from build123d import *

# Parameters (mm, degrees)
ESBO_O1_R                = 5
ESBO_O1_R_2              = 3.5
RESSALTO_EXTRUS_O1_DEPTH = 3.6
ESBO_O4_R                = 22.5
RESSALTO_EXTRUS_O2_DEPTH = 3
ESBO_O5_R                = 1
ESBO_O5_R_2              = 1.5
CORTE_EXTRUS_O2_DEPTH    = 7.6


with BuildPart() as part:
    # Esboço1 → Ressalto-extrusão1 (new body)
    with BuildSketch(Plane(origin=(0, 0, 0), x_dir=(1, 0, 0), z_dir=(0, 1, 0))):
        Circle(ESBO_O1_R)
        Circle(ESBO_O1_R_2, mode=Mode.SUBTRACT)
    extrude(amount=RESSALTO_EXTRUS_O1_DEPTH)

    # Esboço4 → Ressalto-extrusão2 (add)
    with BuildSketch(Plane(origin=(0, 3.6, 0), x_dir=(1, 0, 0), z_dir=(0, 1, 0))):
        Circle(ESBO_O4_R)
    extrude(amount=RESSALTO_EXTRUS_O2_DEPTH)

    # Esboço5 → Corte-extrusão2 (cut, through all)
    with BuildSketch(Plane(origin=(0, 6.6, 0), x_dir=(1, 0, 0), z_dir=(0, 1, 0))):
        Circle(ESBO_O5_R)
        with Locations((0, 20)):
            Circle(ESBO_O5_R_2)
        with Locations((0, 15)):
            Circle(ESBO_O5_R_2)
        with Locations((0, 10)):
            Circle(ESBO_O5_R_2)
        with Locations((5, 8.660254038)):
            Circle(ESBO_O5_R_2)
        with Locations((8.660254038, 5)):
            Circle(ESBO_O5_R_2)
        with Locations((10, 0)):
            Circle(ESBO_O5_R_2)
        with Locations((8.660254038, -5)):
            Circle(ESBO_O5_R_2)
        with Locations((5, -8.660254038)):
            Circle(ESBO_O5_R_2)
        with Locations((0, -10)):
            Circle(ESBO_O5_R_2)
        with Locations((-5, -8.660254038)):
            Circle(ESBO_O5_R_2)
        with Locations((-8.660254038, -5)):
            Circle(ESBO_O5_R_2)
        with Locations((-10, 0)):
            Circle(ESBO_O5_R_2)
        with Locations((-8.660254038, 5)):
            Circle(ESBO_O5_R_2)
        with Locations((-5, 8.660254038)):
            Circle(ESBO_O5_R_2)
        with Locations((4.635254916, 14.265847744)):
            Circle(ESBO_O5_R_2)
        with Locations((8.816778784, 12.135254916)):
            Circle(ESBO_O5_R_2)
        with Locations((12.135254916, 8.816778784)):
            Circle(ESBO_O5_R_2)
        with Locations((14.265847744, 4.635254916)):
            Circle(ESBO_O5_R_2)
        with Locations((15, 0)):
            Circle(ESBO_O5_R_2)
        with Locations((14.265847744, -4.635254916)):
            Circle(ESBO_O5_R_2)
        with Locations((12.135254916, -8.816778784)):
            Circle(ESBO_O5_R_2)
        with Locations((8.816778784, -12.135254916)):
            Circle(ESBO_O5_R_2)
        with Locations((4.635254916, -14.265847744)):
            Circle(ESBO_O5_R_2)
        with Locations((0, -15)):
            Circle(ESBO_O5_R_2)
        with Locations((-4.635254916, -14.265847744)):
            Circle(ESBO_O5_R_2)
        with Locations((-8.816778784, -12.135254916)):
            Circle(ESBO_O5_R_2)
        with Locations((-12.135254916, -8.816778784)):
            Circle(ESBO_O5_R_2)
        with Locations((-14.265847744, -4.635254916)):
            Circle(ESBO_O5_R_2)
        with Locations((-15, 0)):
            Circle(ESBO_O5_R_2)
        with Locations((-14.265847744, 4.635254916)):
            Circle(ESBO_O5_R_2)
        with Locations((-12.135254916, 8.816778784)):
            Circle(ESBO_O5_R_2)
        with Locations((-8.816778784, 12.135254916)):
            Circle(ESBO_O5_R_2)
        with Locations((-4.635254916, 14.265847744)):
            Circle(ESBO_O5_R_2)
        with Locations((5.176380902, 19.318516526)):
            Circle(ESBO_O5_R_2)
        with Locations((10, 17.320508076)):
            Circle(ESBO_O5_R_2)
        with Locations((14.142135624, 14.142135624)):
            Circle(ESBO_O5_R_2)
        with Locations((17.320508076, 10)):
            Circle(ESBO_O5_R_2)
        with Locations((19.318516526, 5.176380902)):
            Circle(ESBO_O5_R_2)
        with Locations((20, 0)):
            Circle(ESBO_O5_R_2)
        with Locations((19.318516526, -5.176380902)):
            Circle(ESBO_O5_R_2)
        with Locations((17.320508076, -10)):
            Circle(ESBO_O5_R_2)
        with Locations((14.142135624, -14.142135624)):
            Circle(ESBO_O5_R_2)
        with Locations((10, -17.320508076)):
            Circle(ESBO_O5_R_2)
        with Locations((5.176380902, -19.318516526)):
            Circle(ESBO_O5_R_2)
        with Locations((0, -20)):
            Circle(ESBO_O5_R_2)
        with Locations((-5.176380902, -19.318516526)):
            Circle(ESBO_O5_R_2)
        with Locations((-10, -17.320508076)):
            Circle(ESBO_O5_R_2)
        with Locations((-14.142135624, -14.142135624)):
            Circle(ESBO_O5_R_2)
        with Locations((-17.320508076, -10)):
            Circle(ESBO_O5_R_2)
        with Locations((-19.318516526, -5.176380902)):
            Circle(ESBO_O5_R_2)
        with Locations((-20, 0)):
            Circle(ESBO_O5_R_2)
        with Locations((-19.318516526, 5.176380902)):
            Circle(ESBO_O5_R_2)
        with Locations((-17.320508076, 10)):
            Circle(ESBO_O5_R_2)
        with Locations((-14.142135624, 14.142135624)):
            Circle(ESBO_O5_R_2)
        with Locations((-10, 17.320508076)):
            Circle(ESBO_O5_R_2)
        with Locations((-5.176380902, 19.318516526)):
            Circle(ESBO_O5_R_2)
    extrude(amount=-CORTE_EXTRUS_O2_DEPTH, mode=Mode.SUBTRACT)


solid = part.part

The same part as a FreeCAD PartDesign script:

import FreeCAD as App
import Part
import Sketcher
from FreeCAD import Vector
Q = App.Units.Quantity

doc = App.newDocument("Part")
body = doc.addObject("PartDesign::Body", "Body")

# Sketch on XZ plane
sketch1 = doc.addObject("Sketcher::SketchObject", "Sketch")
body.addObject(sketch1)
sketch1.AttachmentSupport = (doc.XZ_Plane, [""])
sketch1.MapMode = "FlatFace"
sketch1.addGeometry([
    Part.Circle(Vector(0, 0, 0), Vector(0, 0, 1), 5),
    Part.Circle(Vector(0, 0, 0), Vector(0, 0, 1), 3.5),
], False)
sketch1.addConstraint([
    Sketcher.Constraint("Coincident", 0, 3, -1, 1),
    Sketcher.Constraint("Coincident", 1, 3, -1, 1),
    Sketcher.Constraint("Diameter", 0, Q("10 mm")),
    Sketcher.Constraint("Diameter", 1, Q("7 mm")),
])
pad1 = doc.addObject("PartDesign::Pad", "Pad")
body.addObject(pad1)
pad1.Profile = sketch1
pad1.Length = 3.6
pad1.Reversed = True

# Sketch on XZ plane
sketch2 = doc.addObject("Sketcher::SketchObject", "Sketch001")
body.addObject(sketch2)
sketch2.AttachmentSupport = (doc.XZ_Plane, [""])
sketch2.MapMode = "FlatFace"
sketch2.AttachmentOffset = App.Placement(Vector(0, 0, -3.6), App.Rotation())
sketch2.addGeometry(Part.Circle(Vector(0, 0, 0), Vector(0, 0, 1), 22), False)
sketch2.addConstraint([
    Sketcher.Constraint("Coincident", 0, 3, -1, 1),
    Sketcher.Constraint("Diameter", 0, Q("45 mm")),
])
pad2 = doc.addObject("PartDesign::Pad", "Pad001")
body.addObject(pad2)
pad2.Profile = sketch2
pad2.Length = 3
pad2.Reversed = True

# Sketch on XZ plane
sketch3 = doc.addObject("Sketcher::SketchObject", "Sketch002")
body.addObject(sketch3)
sketch3.AttachmentSupport = (doc.XZ_Plane, [""])
sketch3.MapMode = "FlatFace"
sketch3.AttachmentOffset = App.Placement(Vector(0, 0, -6.6), App.Rotation())
sketch3.addGeometry([
    Part.Circle(Vector(0, 0, 0), Vector(0, 0, 1), 1),  # 0
    Part.Circle(Vector(0, -20, 0), Vector(0, 0, 1), 1.5),  # 1
    Part.Circle(Vector(0, -15, 0), Vector(0, 0, 1), 1.5),  # 2
    Part.Circle(Vector(0, -10, 0), Vector(0, 0, 1), 1.5),  # 3
    Part.Circle(Vector(5, -8.7, 0), Vector(0, 0, 1), 1.5),  # 4
    Part.Circle(Vector(8.7, -5, 0), Vector(0, 0, 1), 1.5),  # 5
    Part.Circle(Vector(10, 0, 0), Vector(0, 0, 1), 1.5),  # 6
    Part.Circle(Vector(8.7, 5, 0), Vector(0, 0, 1), 1.5),  # 7
    Part.Circle(Vector(5, 8.7, 0), Vector(0, 0, 1), 1.5),  # 8
    Part.Circle(Vector(0, 10, 0), Vector(0, 0, 1), 1.5),  # 9
    Part.Circle(Vector(-5, 8.7, 0), Vector(0, 0, 1), 1.5),  # 10
    Part.Circle(Vector(-8.7, 5, 0), Vector(0, 0, 1), 1.5),  # 11
    Part.Circle(Vector(-10, 0, 0), Vector(0, 0, 1), 1.5),  # 12
    Part.Circle(Vector(-8.7, -5, 0), Vector(0, 0, 1), 1.5),  # 13
    Part.Circle(Vector(-5, -8.7, 0), Vector(0, 0, 1), 1.5),  # 14
    Part.Circle(Vector(4.6, -14.3, 0), Vector(0, 0, 1), 1.5),  # 15
    Part.Circle(Vector(8.8, -12.1, 0), Vector(0, 0, 1), 1.5),  # 16
    Part.Circle(Vector(12.1, -8.8, 0), Vector(0, 0, 1), 1.5),  # 17
    Part.Circle(Vector(14.3, -4.6, 0), Vector(0, 0, 1), 1.5),  # 18
    Part.Circle(Vector(15, 0, 0), Vector(0, 0, 1), 1.5),  # 19
    Part.Circle(Vector(14.3, 4.6, 0), Vector(0, 0, 1), 1.5),  # 20
    Part.Circle(Vector(12.1, 8.8, 0), Vector(0, 0, 1), 1.5),  # 21
    Part.Circle(Vector(8.8, 12.1, 0), Vector(0, 0, 1), 1.5),  # 22
    Part.Circle(Vector(4.6, 14.3, 0), Vector(0, 0, 1), 1.5),  # 23
    Part.Circle(Vector(0, 15, 0), Vector(0, 0, 1), 1.5),  # 24
    Part.Circle(Vector(-4.6, 14.3, 0), Vector(0, 0, 1), 1.5),  # 25
    Part.Circle(Vector(-8.8, 12.1, 0), Vector(0, 0, 1), 1.5),  # 26
    Part.Circle(Vector(-12.1, 8.8, 0), Vector(0, 0, 1), 1.5),  # 27
    Part.Circle(Vector(-14.3, 4.6, 0), Vector(0, 0, 1), 1.5),  # 28
    Part.Circle(Vector(-15, 0, 0), Vector(0, 0, 1), 1.5),  # 29
    Part.Circle(Vector(-14.3, -4.6, 0), Vector(0, 0, 1), 1.5),  # 30
    Part.Circle(Vector(-12.1, -8.8, 0), Vector(0, 0, 1), 1.5),  # 31
    Part.Circle(Vector(-8.8, -12.1, 0), Vector(0, 0, 1), 1.5),  # 32
    Part.Circle(Vector(-4.6, -14.3, 0), Vector(0, 0, 1), 1.5),  # 33
    Part.Circle(Vector(5.2, -19.3, 0), Vector(0, 0, 1), 1.5),  # 34
    Part.Circle(Vector(10, -17.3, 0), Vector(0, 0, 1), 1.5),  # 35
    Part.Circle(Vector(14.1, -14.1, 0), Vector(0, 0, 1), 1.5),  # 36
    Part.Circle(Vector(17.3, -10, 0), Vector(0, 0, 1), 1.5),  # 37
    Part.Circle(Vector(19.3, -5.2, 0), Vector(0, 0, 1), 1.5),  # 38
    Part.Circle(Vector(20, 0, 0), Vector(0, 0, 1), 1.5),  # 39
    Part.Circle(Vector(19.3, 5.2, 0), Vector(0, 0, 1), 1.5),  # 40
    Part.Circle(Vector(17.3, 10, 0), Vector(0, 0, 1), 1.5),  # 41
    Part.Circle(Vector(14.1, 14.1, 0), Vector(0, 0, 1), 1.5),  # 42
    Part.Circle(Vector(10, 17.3, 0), Vector(0, 0, 1), 1.5),  # 43
    Part.Circle(Vector(5.2, 19.3, 0), Vector(0, 0, 1), 1.5),  # 44
    Part.Circle(Vector(0, 20, 0), Vector(0, 0, 1), 1.5),  # 45
    Part.Circle(Vector(-5.2, 19.3, 0), Vector(0, 0, 1), 1.5),  # 46
    Part.Circle(Vector(-10, 17.3, 0), Vector(0, 0, 1), 1.5),  # 47
    Part.Circle(Vector(-14.1, 14.1, 0), Vector(0, 0, 1), 1.5),  # 48
    Part.Circle(Vector(-17.3, 10, 0), Vector(0, 0, 1), 1.5),  # 49
    Part.Circle(Vector(-19.3, 5.2, 0), Vector(0, 0, 1), 1.5),  # 50
    Part.Circle(Vector(-20, 0, 0), Vector(0, 0, 1), 1.5),  # 51
    Part.Circle(Vector(-19.3, -5.2, 0), Vector(0, 0, 1), 1.5),  # 52
    Part.Circle(Vector(-17.3, -10, 0), Vector(0, 0, 1), 1.5),  # 53
    Part.Circle(Vector(-14.1, -14.1, 0), Vector(0, 0, 1), 1.5),  # 54
    Part.Circle(Vector(-10, -17.3, 0), Vector(0, 0, 1), 1.5),  # 55
    Part.Circle(Vector(-5.2, -19.3, 0), Vector(0, 0, 1), 1.5),  # 56
], False)
sketch3.addConstraint([
    Sketcher.Constraint("Coincident", 0, 3, -1, 1),
    Sketcher.Constraint("Equal", 1, 2),
    Sketcher.Constraint("Equal", 2, 3),
    Sketcher.Constraint("Equal", 3, 4),
    Sketcher.Constraint("Equal", 4, 5),
    Sketcher.Constraint("Equal", 5, 6),
    Sketcher.Constraint("Equal", 6, 7),
    Sketcher.Constraint("Equal", 7, 8),
    Sketcher.Constraint("Equal", 8, 9),
    Sketcher.Constraint("Equal", 9, 10),
    Sketcher.Constraint("Equal", 10, 11),
    Sketcher.Constraint("Equal", 11, 12),
    Sketcher.Constraint("Equal", 12, 13),
    Sketcher.Constraint("Equal", 13, 14),
    Sketcher.Constraint("Equal", 14, 15),
    Sketcher.Constraint("Equal", 15, 16),
    Sketcher.Constraint("Equal", 16, 17),
    Sketcher.Constraint("Equal", 17, 18),
    Sketcher.Constraint("Equal", 18, 19),
    Sketcher.Constraint("Equal", 19, 20),
    Sketcher.Constraint("Equal", 20, 21),
    Sketcher.Constraint("Equal", 21, 22),
    Sketcher.Constraint("Equal", 22, 23),
    Sketcher.Constraint("Equal", 23, 24),
    Sketcher.Constraint("Equal", 24, 25),
    Sketcher.Constraint("Equal", 25, 26),
    Sketcher.Constraint("Equal", 26, 27),
    Sketcher.Constraint("Equal", 27, 28),
    Sketcher.Constraint("Equal", 28, 29),
    Sketcher.Constraint("Equal", 29, 30),
    Sketcher.Constraint("Equal", 30, 31),
    Sketcher.Constraint("Equal", 31, 32),
    Sketcher.Constraint("Equal", 32, 33),
    Sketcher.Constraint("Equal", 33, 34),
    Sketcher.Constraint("Equal", 34, 35),
    Sketcher.Constraint("Equal", 35, 36),
    Sketcher.Constraint("Equal", 36, 37),
    Sketcher.Constraint("Equal", 37, 38),
    Sketcher.Constraint("Equal", 38, 39),
    Sketcher.Constraint("Equal", 39, 40),
    Sketcher.Constraint("Equal", 40, 41),
    Sketcher.Constraint("Equal", 41, 42),
    Sketcher.Constraint("Equal", 42, 43),
    Sketcher.Constraint("Equal", 43, 44),
    Sketcher.Constraint("Equal", 44, 45),
    Sketcher.Constraint("Equal", 45, 46),
    Sketcher.Constraint("Equal", 46, 47),
    Sketcher.Constraint("Equal", 47, 48),
    Sketcher.Constraint("Equal", 48, 49),
    Sketcher.Constraint("Equal", 49, 50),
    Sketcher.Constraint("Equal", 50, 51),
    Sketcher.Constraint("Equal", 51, 52),
    Sketcher.Constraint("Equal", 52, 53),
    Sketcher.Constraint("Equal", 53, 54),
    Sketcher.Constraint("Equal", 54, 55),
    Sketcher.Constraint("Equal", 55, 56),
    Sketcher.Constraint("Symmetric", 3, 3, 9, 3, -1, 1),
    Sketcher.Constraint("Symmetric", 4, 3, 10, 3, -1, 1),
    Sketcher.Constraint("Symmetric", 5, 3, 11, 3, -1, 1),
    Sketcher.Constraint("Symmetric", 6, 3, 12, 3, -1, 1),
    Sketcher.Constraint("Symmetric", 7, 3, 13, 3, -1, 1),
    Sketcher.Constraint("Symmetric", 8, 3, 14, 3, -1, 1),
    Sketcher.Constraint("Symmetric", 2, 3, 24, 3, -1, 1),
    Sketcher.Constraint("Symmetric", 15, 3, 25, 3, -1, 1),
    Sketcher.Constraint("Symmetric", 16, 3, 26, 3, -1, 1),
    Sketcher.Constraint("Symmetric", 17, 3, 27, 3, -1, 1),
    Sketcher.Constraint("Symmetric", 18, 3, 28, 3, -1, 1),
    Sketcher.Constraint("Symmetric", 19, 3, 29, 3, -1, 1),
    Sketcher.Constraint("Symmetric", 20, 3, 30, 3, -1, 1),
    Sketcher.Constraint("Symmetric", 21, 3, 31, 3, -1, 1),
    Sketcher.Constraint("Symmetric", 22, 3, 32, 3, -1, 1),
    Sketcher.Constraint("Symmetric", 23, 3, 33, 3, -1, 1),
    Sketcher.Constraint("Symmetric", 1, 3, 45, 3, -1, 1),
    Sketcher.Constraint("Symmetric", 34, 3, 46, 3, -1, 1),
    Sketcher.Constraint("Symmetric", 35, 3, 47, 3, -1, 1),
    Sketcher.Constraint("Symmetric", 36, 3, 48, 3, -1, 1),
    Sketcher.Constraint("Symmetric", 37, 3, 49, 3, -1, 1),
    Sketcher.Constraint("Symmetric", 38, 3, 50, 3, -1, 1),
    Sketcher.Constraint("Symmetric", 39, 3, 51, 3, -1, 1),
    Sketcher.Constraint("Symmetric", 40, 3, 52, 3, -1, 1),
    Sketcher.Constraint("Symmetric", 41, 3, 53, 3, -1, 1),
    Sketcher.Constraint("Symmetric", 42, 3, 54, 3, -1, 1),
    Sketcher.Constraint("Symmetric", 43, 3, 55, 3, -1, 1),
    Sketcher.Constraint("Symmetric", 44, 3, 56, 3, -1, 1),
    Sketcher.Constraint("Symmetric", 8, 3, 10, 3, -2),
    Sketcher.Constraint("Symmetric", 7, 3, 11, 3, -2),
    Sketcher.Constraint("Symmetric", 23, 3, 25, 3, -2),
    Sketcher.Constraint("Symmetric", 22, 3, 26, 3, -2),
    Sketcher.Constraint("Symmetric", 21, 3, 27, 3, -2),
    Sketcher.Constraint("Symmetric", 20, 3, 28, 3, -2),
    Sketcher.Constraint("Symmetric", 44, 3, 46, 3, -2),
    Sketcher.Constraint("Symmetric", 43, 3, 47, 3, -2),
    Sketcher.Constraint("Symmetric", 42, 3, 48, 3, -2),
    Sketcher.Constraint("Symmetric", 41, 3, 49, 3, -2),
    Sketcher.Constraint("Symmetric", 40, 3, 50, 3, -2),
    Sketcher.Constraint("PointOnObject", 1, 3, -2),
    Sketcher.Constraint("PointOnObject", 2, 3, -2),
    Sketcher.Constraint("PointOnObject", 3, 3, -2),
    Sketcher.Constraint("PointOnObject", 6, 3, -1),
    Sketcher.Constraint("PointOnObject", 19, 3, -1),
    Sketcher.Constraint("PointOnObject", 39, 3, -1),
    Sketcher.Constraint("Horizontal", 3, 3, 37, 3),
    Sketcher.Constraint("Vertical", 6, 3, 35, 3),
    Sketcher.Constraint("Diameter", 0, Q("2 mm")),
    Sketcher.Constraint("Diameter", 1, Q("3 mm")),
    Sketcher.Constraint("DistanceY", 1, 3, -1, 1, Q("20 mm")),
    Sketcher.Constraint("DistanceY", 2, 3, -1, 1, Q("15 mm")),
    Sketcher.Constraint("DistanceY", 3, 3, -1, 1, Q("10 mm")),
    Sketcher.Constraint("DistanceX", -1, 1, 4, 3, Q("5 mm")),
    Sketcher.Constraint("DistanceY", 5, 3, -1, 1, Q("5 mm")),
    Sketcher.Constraint("DistanceX", -1, 1, 6, 3, Q("10 mm")),
    Sketcher.Constraint("DistanceX", -1, 1, 19, 3, Q("15 mm")),
    Sketcher.Constraint("DistanceX", -1, 1, 39, 3, Q("20 mm")),
    Sketcher.Constraint("DistanceX", 15, 3, 17, 3, Q("7.5 mm")),
    Sketcher.Constraint("DistanceY", 16, 3, 18, 3, Q("7.5 mm")),
    Sketcher.Constraint("DistanceX", 15, 3, 5, 3, Q("4.024999 mm")),
    Sketcher.Constraint("DistanceY", 16, 3, 4, 3, Q("3.475001 mm")),
    Sketcher.Constraint("DistanceX", -1, 1, 16, 3, Q("8.816779 mm")),
    Sketcher.Constraint("DistanceY", 17, 3, -1, 1, Q("8.816779 mm")),
    Sketcher.Constraint("DistanceX", -1, 1, 34, 3, Q("5.176381 mm")),
    Sketcher.Constraint("DistanceY", 35, 3, -1, 1, Q("17.320508 mm")),
    Sketcher.Constraint("DistanceX", -1, 1, 37, 3, Q("17.320508 mm")),
    Sketcher.Constraint("DistanceY", 38, 3, -1, 1, Q("5.176381 mm")),
    Sketcher.Constraint("DistanceY", 4, 3, 8, 3, Q("17.320508 mm")),
    Sketcher.Constraint("DistanceY", 15, 3, 17, 3, Q("5.449069 mm")),
    Sketcher.Constraint("DistanceX", 16, 3, 18, 3, Q("5.449069 mm")),
    Sketcher.Constraint("DistanceX", 25, 3, 23, 3, Q("9.27051 mm")),
    Sketcher.Constraint("DistanceY", 34, 3, 15, 3, Q("5.052669 mm")),
    Sketcher.Constraint("DistanceY", 36, 3, 16, 3, Q("2.006881 mm")),
    Sketcher.Constraint("DistanceX", 17, 3, 36, 3, Q("2.006881 mm")),
    Sketcher.Constraint("DistanceX", 18, 3, 38, 3, Q("5.052669 mm")),
])
pocket1 = doc.addObject("PartDesign::Pocket", "Pocket")
body.addObject(pocket1)
pocket1.Profile = sketch3
pocket1.Type = "ThroughAll"
pocket1.Reversed = True

doc.recompute()
